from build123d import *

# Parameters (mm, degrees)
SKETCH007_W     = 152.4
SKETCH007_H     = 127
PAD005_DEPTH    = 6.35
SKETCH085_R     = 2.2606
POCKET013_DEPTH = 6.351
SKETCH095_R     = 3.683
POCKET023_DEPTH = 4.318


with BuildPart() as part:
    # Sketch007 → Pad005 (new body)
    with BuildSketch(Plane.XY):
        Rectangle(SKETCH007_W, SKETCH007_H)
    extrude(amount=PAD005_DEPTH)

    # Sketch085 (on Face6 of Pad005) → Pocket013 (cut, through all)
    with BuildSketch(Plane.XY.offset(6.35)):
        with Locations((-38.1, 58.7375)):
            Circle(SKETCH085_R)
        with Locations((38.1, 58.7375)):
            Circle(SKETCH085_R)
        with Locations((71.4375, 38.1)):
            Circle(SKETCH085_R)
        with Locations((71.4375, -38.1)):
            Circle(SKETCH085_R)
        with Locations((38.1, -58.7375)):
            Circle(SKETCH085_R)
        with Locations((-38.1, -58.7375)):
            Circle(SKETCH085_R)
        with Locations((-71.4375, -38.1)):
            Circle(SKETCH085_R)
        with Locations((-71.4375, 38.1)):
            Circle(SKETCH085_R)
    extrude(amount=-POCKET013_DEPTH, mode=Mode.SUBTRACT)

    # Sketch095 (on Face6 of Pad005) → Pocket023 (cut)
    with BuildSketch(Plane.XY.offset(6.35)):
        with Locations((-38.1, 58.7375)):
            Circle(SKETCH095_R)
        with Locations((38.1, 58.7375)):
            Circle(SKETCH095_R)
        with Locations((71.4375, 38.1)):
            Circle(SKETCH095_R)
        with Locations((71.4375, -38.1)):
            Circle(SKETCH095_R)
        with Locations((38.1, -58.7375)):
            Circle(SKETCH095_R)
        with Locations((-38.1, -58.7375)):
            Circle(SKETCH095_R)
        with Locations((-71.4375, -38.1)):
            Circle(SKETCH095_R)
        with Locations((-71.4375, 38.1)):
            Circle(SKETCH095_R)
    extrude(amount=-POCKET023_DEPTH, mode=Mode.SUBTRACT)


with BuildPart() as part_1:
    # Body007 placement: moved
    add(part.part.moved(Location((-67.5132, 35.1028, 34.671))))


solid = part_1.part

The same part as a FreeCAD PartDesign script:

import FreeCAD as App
import Part
import Sketcher
Q = App.Units.Quantity

doc = App.newDocument("Part")
params = doc.addObject("Spreadsheet::Sheet", "Params")
for row, (alias, value) in enumerate([
    ("sketch1_width", "6 in"),
    ("sketch1_height", "5 in"),
    ("pad1_length", "0.25 in"),
    ("sketch2_diameter", "0.178 in"),
    ("sketch3_diameter", "0.29 in"),
    ("pocket2_length", "0.17 in"),
], start=1):
    params.set(f"A{row}", alias)
    params.set(f"B{row}", "=" + value)
    params.setAlias(f"B{row}", alias)

body = doc.addObject("PartDesign::Body", "Body")

sketch1 = body.newObject("Sketcher::SketchObject", "Sketch")
sketch1.AttachmentSupport = (doc.getObject("XY_Plane"), [""])
sketch1.MapMode = "FlatFace"
sketch1.addGeometry([
    Part.LineSegment(App.Vector(-76.2, 63.5, 0), App.Vector(-76.2, -63.5, 0)),
    Part.LineSegment(App.Vector(-76.2, -63.5, 0), App.Vector(76.2, -63.5, 0)),
    Part.LineSegment(App.Vector(76.2, -63.5, 0), App.Vector(76.2, 63.5, 0)),
    Part.LineSegment(App.Vector(76.2, 63.5, 0), App.Vector(-76.2, 63.5, 0)),
], False)
sketch1.addConstraint([
    Sketcher.Constraint("Coincident", 0, 2, 1, 1),
    Sketcher.Constraint("Coincident", 1, 2, 2, 1),
    Sketcher.Constraint("Coincident", 2, 2, 3, 1),
    Sketcher.Constraint("Coincident", 3, 2, 0, 1),
    Sketcher.Constraint("Vertical", 0),
    Sketcher.Constraint("Horizontal", 1),
    Sketcher.Constraint("Vertical", 2),
    Sketcher.Constraint("Horizontal", 3),
    Sketcher.Constraint("Symmetric", 0, 2, 2, 2, -1, 1),
    Sketcher.Constraint("DistanceX", 1, 1, 1, 2, Q("6 in")),
    Sketcher.Constraint("DistanceY", 0, 2, 0, 1, Q("5 in")),
])
sketch1.setExpression("Constraints[9]", "Params.sketch1_width")
sketch1.setExpression("Constraints[10]", "Params.sketch1_height")
pad1 = body.newObject("PartDesign::Pad", "Pad")
pad1.Profile = sketch1
pad1.setExpression("Length", "Params.pad1_length")

sketch2 = body.newObject("Sketcher::SketchObject", "Sketch001")
sketch2.AttachmentSupport = (doc.getObject("XY_Plane"), [""])
sketch2.MapMode = "FlatFace"
sketch2.AttachmentOffset = App.Placement(App.Vector(0, 0, 0.25 * 25.4), App.Rotation())
sketch2.addGeometry([
    Part.Circle(App.Vector(-38.1, 58.7375, 0), App.Vector(0, 0, 1), 2.2606),
    Part.Circle(App.Vector(38.1, 58.7375, 0), App.Vector(0, 0, 1), 2.2606),
    Part.Circle(App.Vector(71.4375, 38.1, 0), App.Vector(0, 0, 1), 2.2606),
    Part.Circle(App.Vector(71.4375, -38.1, 0), App.Vector(0, 0, 1), 2.2606),
    Part.Circle(App.Vector(38.1, -58.7375, 0), App.Vector(0, 0, 1), 2.2606),
    Part.Circle(App.Vector(-38.1, -58.7375, 0), App.Vector(0, 0, 1), 2.2606),
    Part.Circle(App.Vector(-71.4375, -38.1, 0), App.Vector(0, 0, 1), 2.2606),
    Part.Circle(App.Vector(-71.4375, 38.1, 0), App.Vector(0, 0, 1), 2.2606),
], False)
sketch2.addConstraint([
    Sketcher.Constraint("Equal", 0, 1),
    Sketcher.Constraint("Equal", 1, 2),
    Sketcher.Constraint("Equal", 2, 3),
    Sketcher.Constraint("Equal", 3, 4),
    Sketcher.Constraint("Equal", 4, 5),
    Sketcher.Constraint("Equal", 5, 6),
    Sketcher.Constraint("Equal", 6, 7),
    Sketcher.Constraint("Symmetric", 0, 3, 4, 3, -1, 1),
    Sketcher.Constraint("Symmetric", 1, 3, 5, 3, -1, 1),
    Sketcher.Constraint("Symmetric", 2, 3, 6, 3, -1, 1),
    Sketcher.Constraint("Symmetric", 3, 3, 7, 3, -1, 1),
    Sketcher.Constraint("Symmetric", 0, 3, 1, 3, -2),
    Sketcher.Constraint("Symmetric", 3, 3, 6, 3, -2),
    Sketcher.Constraint("Diameter", 0, Q("0.178 in")),
    Sketcher.Constraint("DistanceX", 0, 3, 1, 3, Q("3 in")),
    Sketcher.Constraint("DistanceY", 3, 3, 2, 3, Q("3 in")),
    Sketcher.Constraint("DistanceY", -1, 1, 0, 3, Q("2.3125 in")),
    Sketcher.Constraint("DistanceX", -1, 1, 2, 3, Q("2.8125 in")),
])
sketch2.setExpression("Constraints[13]", "Params.sketch2_diameter")
pocket1 = body.newObject("PartDesign::Pocket", "Pocket")
pocket1.Profile = sketch2
pocket1.Type = "ThroughAll"

sketch3 = body.newObject("Sketcher::SketchObject", "Sketch002")
sketch3.AttachmentSupport = (doc.getObject("XY_Plane"), [""])
sketch3.MapMode = "FlatFace"
sketch3.AttachmentOffset = App.Placement(App.Vector(0, 0, 0.25 * 25.4), App.Rotation())
sketch3.addGeometry([
    Part.Circle(App.Vector(-38.1, 58.7375, 0), App.Vector(0, 0, 1), 3.683),
    Part.Circle(App.Vector(38.1, 58.7375, 0), App.Vector(0, 0, 1), 3.683),
    Part.Circle(App.Vector(71.4375, 38.1, 0), App.Vector(0, 0, 1), 3.683),
    Part.Circle(App.Vector(71.4375, -38.1, 0), App.Vector(0, 0, 1), 3.683),
    Part.Circle(App.Vector(38.1, -58.7375, 0), App.Vector(0, 0, 1), 3.683),
    Part.Circle(App.Vector(-38.1, -58.7375, 0), App.Vector(0, 0, 1), 3.683),
    Part.Circle(App.Vector(-71.4375, -38.1, 0), App.Vector(0, 0, 1), 3.683),
    Part.Circle(App.Vector(-71.4375, 38.1, 0), App.Vector(0, 0, 1), 3.683),
], False)
sketch3.addConstraint([
    Sketcher.Constraint("Equal", 0, 1),
    Sketcher.Constraint("Equal", 1, 2),
    Sketcher.Constraint("Equal", 2, 3),
    Sketcher.Constraint("Equal", 3, 4),
    Sketcher.Constraint("Equal", 4, 5),
    Sketcher.Constraint("Equal", 5, 6),
    Sketcher.Constraint("Equal", 6, 7),
    Sketcher.Constraint("Symmetric", 0, 3, 4, 3, -1, 1),
    Sketcher.Constraint("Symmetric", 1, 3, 5, 3, -1, 1),
    Sketcher.Constraint("Symmetric", 2, 3, 6, 3, -1, 1),
    Sketcher.Constraint("Symmetric", 3, 3, 7, 3, -1, 1),
    Sketcher.Constraint("Symmetric", 0, 3, 1, 3, -2),
    Sketcher.Constraint("Symmetric", 3, 3, 6, 3, -2),
    Sketcher.Constraint("Diameter", 0, Q("0.29 in")),
    Sketcher.Constraint("DistanceX", 0, 3, 1, 3, Q("3 in")),
    Sketcher.Constraint("DistanceY", 3, 3, 2, 3, Q("3 in")),
    Sketcher.Constraint("DistanceY", -1, 1, 0, 3, Q("2.3125 in")),
    Sketcher.Constraint("DistanceX", -1, 1, 2, 3, Q("2.8125 in")),
])
sketch3.setExpression("Constraints[13]", "Params.sketch3_diameter")
pocket2 = body.newObject("PartDesign::Pocket", "Pocket001")
pocket2.Profile = sketch3
pocket2.setExpression("Length", "Params.pocket2_length")
body2 = doc.addObject("PartDesign::Body", "Body001")
doc.recompute()

body.Placement = App.Placement(App.Vector(-67.5132, 35.1028, 34.671), App.Rotation(App.Vector(0, 0, 1), 0))
boolean = body2.newObject("PartDesign::Boolean", "Boolean")
boolean.Type = "Fuse"
boolean.addObjects([body])

doc.recompute()
